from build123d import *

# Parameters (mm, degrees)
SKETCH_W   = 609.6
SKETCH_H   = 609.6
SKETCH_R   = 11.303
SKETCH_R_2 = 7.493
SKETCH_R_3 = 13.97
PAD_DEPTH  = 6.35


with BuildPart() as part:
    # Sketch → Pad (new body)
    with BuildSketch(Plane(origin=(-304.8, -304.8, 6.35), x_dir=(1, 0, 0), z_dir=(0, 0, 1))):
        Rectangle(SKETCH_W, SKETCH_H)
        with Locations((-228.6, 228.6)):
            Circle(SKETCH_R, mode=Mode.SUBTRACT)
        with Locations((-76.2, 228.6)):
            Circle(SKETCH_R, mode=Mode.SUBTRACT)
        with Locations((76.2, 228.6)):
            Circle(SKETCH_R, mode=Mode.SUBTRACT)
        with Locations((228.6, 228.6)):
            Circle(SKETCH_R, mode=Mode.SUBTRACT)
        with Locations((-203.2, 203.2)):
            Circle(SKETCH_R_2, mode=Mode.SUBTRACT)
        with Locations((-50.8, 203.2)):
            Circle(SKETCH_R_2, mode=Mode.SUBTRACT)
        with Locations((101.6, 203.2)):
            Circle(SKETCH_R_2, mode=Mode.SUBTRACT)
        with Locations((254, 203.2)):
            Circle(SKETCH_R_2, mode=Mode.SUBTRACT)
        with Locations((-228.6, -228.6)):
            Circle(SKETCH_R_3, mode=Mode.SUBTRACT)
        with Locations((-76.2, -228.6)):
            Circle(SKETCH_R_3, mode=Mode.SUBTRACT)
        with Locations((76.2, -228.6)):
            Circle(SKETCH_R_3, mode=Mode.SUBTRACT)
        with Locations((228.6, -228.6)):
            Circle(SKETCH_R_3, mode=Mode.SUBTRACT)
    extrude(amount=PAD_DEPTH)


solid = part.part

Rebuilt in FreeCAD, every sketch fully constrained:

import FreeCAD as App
import Part
import Sketcher
from FreeCAD import Vector
Q = App.Units.Quantity


def add_polygon(sketch, points):
    """Adds a closed chain of lines whose ends are joined by coincident constraints."""
    first, n = sketch.GeometryCount, len(points)
    for a, b in zip(points, points[1:] + points[:1]):
        sketch.addGeometry(Part.LineSegment(App.Vector(*a, 0), App.Vector(*b, 0)), False)
    for i in range(n):
        sketch.addConstraint(Sketcher.Constraint("Coincident", first + i, 2, first + (i + 1) % n, 1))

doc = App.newDocument("Part")
body = doc.addObject("PartDesign::Body", "Body")

sketch1 = doc.addObject("Sketcher::SketchObject", "Sketch")
body.addObject(sketch1)
sketch1.AttachmentSupport = (doc.XY_Plane, [""])
sketch1.MapMode = "FlatFace"
sketch1.AttachmentOffset = App.Placement(Vector(0, 0, 0.25 * 25.4), App.Rotation())
add_polygon(sketch1, [(-610, 0), (-610, -610), (0, -610), (0, 0)])
sketch1.addGeometry(Part.Circle(Vector(-533, -533, 0), Vector(0, 0, 1), 14), False)
sketch1.addGeometry(Part.Circle(Vector(-381, -533, 0), Vector(0, 0, 1), 14), False)
sketch1.addGeometry(Part.Circle(Vector(-229, -533, 0), Vector(0, 0, 1), 14), False)
sketch1.addGeometry(Part.Circle(Vector(-76, -533, 0), Vector(0, 0, 1), 14), False)
sketch1.addGeometry(Part.Circle(Vector(-508, -102, 0), Vector(0, 0, 1), 7), False)
sketch1.addGeometry(Part.Circle(Vector(-533, -76, 0), Vector(0, 0, 1), 11), False)
sketch1.addGeometry(Part.Circle(Vector(-381, -76, 0), Vector(0, 0, 1), 11), False)
sketch1.addGeometry(Part.Circle(Vector(-356, -102, 0), Vector(0, 0, 1), 7), False)
sketch1.addGeometry(Part.Circle(Vector(-203, -102, 0), Vector(0, 0, 1), 7), False)
sketch1.addGeometry(Part.Circle(Vector(-229, -76, 0), Vector(0, 0, 1), 11), False)
sketch1.addGeometry(Part.Circle(Vector(-51, -102, 0), Vector(0, 0, 1), 7), False)
sketch1.addGeometry(Part.Circle(Vector(-76, -76, 0), Vector(0, 0, 1), 11), False)
sketch1.addConstraint(Sketcher.Constraint("Vertical", 0))
sketch1.addConstraint(Sketcher.Constraint("Horizontal", 1))
sketch1.addConstraint(Sketcher.Constraint("Vertical", 2))
sketch1.addConstraint(Sketcher.Constraint("Horizontal", 3))
sketch1.addConstraint(Sketcher.Constraint("Coincident", 2, 2, -1, 1))
sketch1.addConstraint(Sketcher.Constraint("Equal", 4, 5))
sketch1.addConstraint(Sketcher.Constraint("Equal", 5, 6))
sketch1.addConstraint(Sketcher.Constraint("Equal", 6, 7))
sketch1.addConstraint(Sketcher.Constraint("Equal", 9, 10))
sketch1.addConstraint(Sketcher.Constraint("Equal", 8, 11))
sketch1.addConstraint(Sketcher.Constraint("Equal", 11, 12))
sketch1.addConstraint(Sketcher.Constraint("Equal", 10, 13))
sketch1.addConstraint(Sketcher.Constraint("Equal", 12, 14))
sketch1.addConstraint(Sketcher.Constraint("Equal", 13, 15))
sketch1.addConstraint(Sketcher.Constraint("Horizontal", 4, 3, 5, 3))
sketch1.addConstraint(Sketcher.Constraint("Horizontal", 5, 3, 6, 3))
sketch1.addConstraint(Sketcher.Constraint("Horizontal", 6, 3, 7, 3))
sketch1.addConstraint(Sketcher.Constraint("Horizontal", 9, 3, 10, 3))
sketch1.addConstraint(Sketcher.Constraint("Horizontal", 8, 3, 11, 3))
sketch1.addConstraint(Sketcher.Constraint("Horizontal", 11, 3, 12, 3))
sketch1.addConstraint(Sketcher.Constraint("Horizontal", 10, 3, 13, 3))
sketch1.addConstraint(Sketcher.Constraint("Horizontal", 12, 3, 14, 3))
sketch1.addConstraint(Sketcher.Constraint("Horizontal", 13, 3, 15, 3))
sketch1.addConstraint(Sketcher.Constraint("Vertical", 4, 3, 9, 3))
sketch1.addConstraint(Sketcher.Constraint("Vertical", 5, 3, 10, 3))
sketch1.addConstraint(Sketcher.Constraint("Vertical", 6, 3, 13, 3))
sketch1.addConstraint(Sketcher.Constraint("Vertical", 7, 3, 15, 3))
sketch1.addConstraint(Sketcher.Constraint("Equal", 3, 0))
sketch1.addConstraint(Sketcher.Constraint("Diameter", 4, Q("1.1 in")))
sketch1.addConstraint(Sketcher.Constraint("Diameter", 8, Q("0.59 in")))
sketch1.addConstraint(Sketcher.Constraint("Diameter", 9, Q("0.89 in")))
sketch1.addConstraint(Sketcher.Constraint("DistanceX", 1, 1, 1, 2, Q("24 in")))
sketch1.addConstraint(Sketcher.Constraint("DistanceX", 4, 3, -1, 1, Q("21 in")))
sketch1.addConstraint(Sketcher.Constraint("DistanceY", 4, 3, -1, 1, Q("21 in")))
sketch1.addConstraint(Sketcher.Constraint("DistanceX", 5, 3, -1, 1, Q("15 in")))
sketch1.addConstraint(Sketcher.Constraint("DistanceX", 6, 3, -1, 1, Q("9 in")))
sketch1.addConstraint(Sketcher.Constraint("DistanceX", 7, 3, -1, 1, Q("3 in")))
sketch1.addConstraint(Sketcher.Constraint("DistanceX", 8, 3, -1, 1, Q("20 in")))
sketch1.addConstraint(Sketcher.Constraint("DistanceY", 8, 3, -1, 1, Q("4 in")))
sketch1.addConstraint(Sketcher.Constraint("DistanceY", 9, 3, -1, 1, Q("3 in")))
sketch1.addConstraint(Sketcher.Constraint("DistanceX", 11, 3, -1, 1, Q("14 in")))
sketch1.addConstraint(Sketcher.Constraint("DistanceX", 12, 3, -1, 1, Q("8 in")))
sketch1.addConstraint(Sketcher.Constraint("DistanceX", 14, 3, -1, 1, Q("2 in")))
pad1 = doc.addObject("PartDesign::Pad", "Pad")
body.addObject(pad1)
pad1.Profile = sketch1
pad1.Length = Q("0.25 in")

doc.recompute()
